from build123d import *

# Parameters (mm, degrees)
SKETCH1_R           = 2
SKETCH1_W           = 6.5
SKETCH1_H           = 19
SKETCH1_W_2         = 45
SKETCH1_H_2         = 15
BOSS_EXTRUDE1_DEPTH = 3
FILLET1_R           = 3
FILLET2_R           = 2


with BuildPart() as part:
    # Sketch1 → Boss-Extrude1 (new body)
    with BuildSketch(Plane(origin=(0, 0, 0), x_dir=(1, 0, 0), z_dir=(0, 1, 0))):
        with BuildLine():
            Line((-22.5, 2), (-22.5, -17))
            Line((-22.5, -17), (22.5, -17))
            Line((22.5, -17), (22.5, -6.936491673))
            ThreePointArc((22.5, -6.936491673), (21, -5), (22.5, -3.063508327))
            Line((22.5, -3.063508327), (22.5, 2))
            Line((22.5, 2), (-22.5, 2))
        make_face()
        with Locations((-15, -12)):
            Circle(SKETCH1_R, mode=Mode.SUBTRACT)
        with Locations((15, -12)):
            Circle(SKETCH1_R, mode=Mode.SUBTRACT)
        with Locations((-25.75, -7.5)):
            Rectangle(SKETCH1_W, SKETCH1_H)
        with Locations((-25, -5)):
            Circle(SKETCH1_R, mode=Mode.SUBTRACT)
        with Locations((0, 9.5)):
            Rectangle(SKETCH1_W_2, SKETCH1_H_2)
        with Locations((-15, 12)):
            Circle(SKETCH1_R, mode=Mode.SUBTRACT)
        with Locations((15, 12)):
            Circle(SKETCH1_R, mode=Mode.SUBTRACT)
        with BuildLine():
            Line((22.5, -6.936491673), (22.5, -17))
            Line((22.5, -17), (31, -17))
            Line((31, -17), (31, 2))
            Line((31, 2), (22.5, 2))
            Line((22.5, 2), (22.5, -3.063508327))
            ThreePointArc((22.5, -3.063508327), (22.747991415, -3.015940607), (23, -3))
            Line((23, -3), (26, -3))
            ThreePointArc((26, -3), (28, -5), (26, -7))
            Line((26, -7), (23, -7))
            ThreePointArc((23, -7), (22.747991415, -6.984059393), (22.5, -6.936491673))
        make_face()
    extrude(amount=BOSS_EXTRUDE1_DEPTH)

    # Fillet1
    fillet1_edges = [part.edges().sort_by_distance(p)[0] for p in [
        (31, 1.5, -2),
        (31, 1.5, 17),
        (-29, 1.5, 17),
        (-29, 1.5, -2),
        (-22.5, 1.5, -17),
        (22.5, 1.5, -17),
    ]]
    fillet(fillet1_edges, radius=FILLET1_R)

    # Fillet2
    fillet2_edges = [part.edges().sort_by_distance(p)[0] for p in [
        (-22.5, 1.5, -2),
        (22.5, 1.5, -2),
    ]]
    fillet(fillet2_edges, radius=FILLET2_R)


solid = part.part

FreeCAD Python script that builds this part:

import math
import FreeCAD as App
import Part
import Sketcher
from FreeCAD import Vector


def edges_at(feature, points):
    """Names of the edges that pass closest to the given points."""
    edges = feature.Shape.Edges
    near = lambda p: min(range(len(edges)), key=lambda i: edges[i].distToShape(Part.Vertex(*p))[0])
    return sorted({f"Edge{near(p) + 1}" for p in points})


def add_polygon(sketch, points):
    """Adds a closed chain of lines whose ends are joined by coincident constraints."""
    first, n = sketch.GeometryCount, len(points)
    for a, b in zip(points, points[1:] + points[:1]):
        sketch.addGeometry(Part.LineSegment(App.Vector(*a, 0), App.Vector(*b, 0)), False)
    for i in range(n):
        sketch.addConstraint(Sketcher.Constraint("Coincident", first + i, 2, first + (i + 1) % n, 1))

doc = App.newDocument("Part")
params = doc.addObject("Spreadsheet::Sheet", "Params")
for row, (alias, value) in enumerate([
    ("sketch1_diameter", "4 mm"),
    ("sketch1_width", "60 mm"),
    ("sketch1_width2", "45 mm"),
    ("sketch1_width3", "3 mm"),
    ("sketch1_height", "19 mm"),
    ("pad1_length", "3 mm"),
    ("fillet_radius", "3 mm"),
    ("fillet2_radius", "2 mm"),
], start=1):
    params.set(f"A{row}", alias)
    params.set(f"B{row}", "=" + value)
    params.setAlias(f"B{row}", alias)

body = doc.addObject("PartDesign::Body", "Body")

# Sketch on XZ plane
sketch1 = body.newObject("Sketcher::SketchObject", "Sketch")
sketch1.AttachmentSupport = (doc.getObject("XZ_Plane"), [""])
sketch1.MapMode = "FlatFace"
add_polygon(sketch1, [(-22.5, -2), (-29, -2), (-29, 17), (31, 17), (31, -2), (22.5, -2), (22.5, -17), (-22.5, -17)])  # lines 0-7
sketch1.addGeometry(Part.ArcOfCircle(Part.Circle(Vector(23, 5, 0), Vector(0, 0, 1), 2), math.radians(104), math.radians(256)), False)  # 8
sketch1.addGeometry(Part.ArcOfCircle(Part.Circle(Vector(23, 5, 0), Vector(0, 0, 1), 2), math.radians(-104.48), math.radians(-90)), False)  # 9
sketch1.addGeometry(Part.LineSegment(Vector(23, 3, 0), Vector(26, 3, 0)), False)  # 10
sketch1.addGeometry(Part.ArcOfCircle(Part.Circle(Vector(26, 5, 0), Vector(0, 0, 1), 2), math.radians(-90), math.radians(90)), False)  # 11
sketch1.addGeometry(Part.LineSegment(Vector(26, 7, 0), Vector(23, 7, 0)), False)  # 12
sketch1.addGeometry(Part.ArcOfCircle(Part.Circle(Vector(23, 5, 0), Vector(0, 0, 1), 2), math.radians(90), math.radians(104.48)), False)  # 13
sketch1.addGeometry(Part.Circle(Vector(-15, 12, 0), Vector(0, 0, 1), 2), False)  # 14
sketch1.addGeometry(Part.Circle(Vector(-25, 5, 0), Vector(0, 0, 1), 2), False)  # 15
sketch1.addGeometry(Part.Circle(Vector(15, 12, 0), Vector(0, 0, 1), 2), False)  # 16
sketch1.addGeometry(Part.Circle(Vector(-15, -12, 0), Vector(0, 0, 1), 2), False)  # 17
sketch1.addGeometry(Part.Circle(Vector(15, -12, 0), Vector(0, 0, 1), 2), False)  # 18
sketch1.addConstraint(Sketcher.Constraint("Tangent", 8, 2, 9, 1))
sketch1.addConstraint(Sketcher.Constraint("Tangent", 9, 2, 10, 1))
sketch1.addConstraint(Sketcher.Constraint("Tangent", 10, 2, 11, 1))
sketch1.addConstraint(Sketcher.Constraint("Tangent", 11, 2, 12, 1))
sketch1.addConstraint(Sketcher.Constraint("Tangent", 12, 2, 13, 1))
sketch1.addConstraint(Sketcher.Constraint("Tangent", 13, 2, 8, 1))
sketch1.addConstraint(Sketcher.Constraint("Horizontal", 0))
sketch1.addConstraint(Sketcher.Constraint("Vertical", 1))
sketch1.addConstraint(Sketcher.Constraint("Horizontal", 2))
sketch1.addConstraint(Sketcher.Constraint("Vertical", 3))
sketch1.addConstraint(Sketcher.Constraint("Horizontal", 4))
sketch1.addConstraint(Sketcher.Constraint("Vertical", 5))
sketch1.addConstraint(Sketcher.Constraint("Horizontal", 6))
sketch1.addConstraint(Sketcher.Constraint("Vertical", 7))
sketch1.addConstraint(Sketcher.Constraint("Horizontal", 10))
sketch1.addConstraint(Sketcher.Constraint("Horizontal", 12))
sketch1.addConstraint(Sketcher.Constraint("Equal", 8, 9))
sketch1.addConstraint(Sketcher.Constraint("Equal", 9, 11))
sketch1.addConstraint(Sketcher.Constraint("Equal", 13, 14))
sketch1.addConstraint(Sketcher.Constraint("Equal", 14, 15))
sketch1.addConstraint(Sketcher.Constraint("Equal", 15, 16))
sketch1.addConstraint(Sketcher.Constraint("Equal", 16, 17))
sketch1.addConstraint(Sketcher.Constraint("Equal", 17, 18))
sketch1.addConstraint(Sketcher.Constraint("Symmetric", 16, 3, 17, 3, -1, 1))
sketch1.addConstraint(Sketcher.Constraint("Symmetric", 14, 3, 18, 3, -1, 1))
sketch1.addConstraint(Sketcher.Constraint("Symmetric", 14, 3, 16, 3, -2))
sketch1.addConstraint(Sketcher.Constraint("Symmetric", 4, 2, 7, 2, -2))
sketch1.addConstraint(Sketcher.Constraint("Horizontal", 13, 3, 15, 3))
sketch1.addConstraint(Sketcher.Constraint("Vertical", 5, 2, 8, 2))
sketch1.addConstraint(Sketcher.Constraint("Vertical", 8, 2, 13, 2))
sketch1.addConstraint(Sketcher.Constraint("Diameter", 14, 4.0))
sketch1.addConstraint(Sketcher.Constraint("DistanceX", 2, 1, 2, 2, 60.0))
sketch1.addConstraint(Sketcher.Constraint("DistanceX", 6, 2, 6, 1, 45.0))
sketch1.addConstraint(Sketcher.Constraint("DistanceX", 10, 1, 10, 2, 3.0))
sketch1.addConstraint(Sketcher.Constraint("DistanceY", 1, 1, 1, 2, 19.0))
sketch1.addConstraint(Sketcher.Constraint("DistanceY", 5, 2, 5, 1, 15.0))
sketch1.addConstraint(Sketcher.Constraint("DistanceX", 0, 2, 0, 1, 6.5))
sketch1.addConstraint(Sketcher.Constraint("DistanceX", -1, 1, 8, 3, 23.0))
sketch1.addConstraint(Sketcher.Constraint("DistanceY", -1, 1, 8, 3, 5.0))
sketch1.addConstraint(Sketcher.Constraint("DistanceX", 14, 3, -1, 1, 15.0))
sketch1.addConstraint(Sketcher.Constraint("DistanceY", -1, 1, 14, 3, 12.0))
sketch1.addConstraint(Sketcher.Constraint("DistanceX", 15, 3, -1, 1, 25.0))
sketch1.addConstraint(Sketcher.Constraint("DistanceY", 0, 2, -1, 1, 2.0))
sketch1.setExpression("Constraints[38]", "Params.sketch1_diameter")
sketch1.setExpression("Constraints[39]", "Params.sketch1_width")
sketch1.setExpression("Constraints[40]", "Params.sketch1_width2")
sketch1.setExpression("Constraints[41]", "Params.sketch1_width3")
sketch1.setExpression("Constraints[42]", "Params.sketch1_height")
pad1 = body.newObject("PartDesign::Pad", "Pad")
pad1.Profile = sketch1
pad1.setExpression("Length", "Params.pad1_length")
pad1.Reversed = True
doc.recompute()

fillet = body.newObject("PartDesign::Fillet", "Fillet")
fillet.Base = (pad1, edges_at(pad1, [
    (31, 1.5, -2),
    (31, 1.5, 17),
    (-29, 1.5, 17),
    (-29, 1.5, -2),
    (-22.5, 1.5, -17),
    (22.5, 1.5, -17),
]))
fillet.setExpression("Radius", "Params.fillet_radius")
doc.recompute()

fillet2 = body.newObject("PartDesign::Fillet", "Fillet001")
fillet2.Base = (fillet, edges_at(fillet, [(-22.5, 1.5, -2), (22.5, 1.5, -2)]))
fillet2.setExpression("Radius", "Params.fillet2_radius")

doc.recompute()
